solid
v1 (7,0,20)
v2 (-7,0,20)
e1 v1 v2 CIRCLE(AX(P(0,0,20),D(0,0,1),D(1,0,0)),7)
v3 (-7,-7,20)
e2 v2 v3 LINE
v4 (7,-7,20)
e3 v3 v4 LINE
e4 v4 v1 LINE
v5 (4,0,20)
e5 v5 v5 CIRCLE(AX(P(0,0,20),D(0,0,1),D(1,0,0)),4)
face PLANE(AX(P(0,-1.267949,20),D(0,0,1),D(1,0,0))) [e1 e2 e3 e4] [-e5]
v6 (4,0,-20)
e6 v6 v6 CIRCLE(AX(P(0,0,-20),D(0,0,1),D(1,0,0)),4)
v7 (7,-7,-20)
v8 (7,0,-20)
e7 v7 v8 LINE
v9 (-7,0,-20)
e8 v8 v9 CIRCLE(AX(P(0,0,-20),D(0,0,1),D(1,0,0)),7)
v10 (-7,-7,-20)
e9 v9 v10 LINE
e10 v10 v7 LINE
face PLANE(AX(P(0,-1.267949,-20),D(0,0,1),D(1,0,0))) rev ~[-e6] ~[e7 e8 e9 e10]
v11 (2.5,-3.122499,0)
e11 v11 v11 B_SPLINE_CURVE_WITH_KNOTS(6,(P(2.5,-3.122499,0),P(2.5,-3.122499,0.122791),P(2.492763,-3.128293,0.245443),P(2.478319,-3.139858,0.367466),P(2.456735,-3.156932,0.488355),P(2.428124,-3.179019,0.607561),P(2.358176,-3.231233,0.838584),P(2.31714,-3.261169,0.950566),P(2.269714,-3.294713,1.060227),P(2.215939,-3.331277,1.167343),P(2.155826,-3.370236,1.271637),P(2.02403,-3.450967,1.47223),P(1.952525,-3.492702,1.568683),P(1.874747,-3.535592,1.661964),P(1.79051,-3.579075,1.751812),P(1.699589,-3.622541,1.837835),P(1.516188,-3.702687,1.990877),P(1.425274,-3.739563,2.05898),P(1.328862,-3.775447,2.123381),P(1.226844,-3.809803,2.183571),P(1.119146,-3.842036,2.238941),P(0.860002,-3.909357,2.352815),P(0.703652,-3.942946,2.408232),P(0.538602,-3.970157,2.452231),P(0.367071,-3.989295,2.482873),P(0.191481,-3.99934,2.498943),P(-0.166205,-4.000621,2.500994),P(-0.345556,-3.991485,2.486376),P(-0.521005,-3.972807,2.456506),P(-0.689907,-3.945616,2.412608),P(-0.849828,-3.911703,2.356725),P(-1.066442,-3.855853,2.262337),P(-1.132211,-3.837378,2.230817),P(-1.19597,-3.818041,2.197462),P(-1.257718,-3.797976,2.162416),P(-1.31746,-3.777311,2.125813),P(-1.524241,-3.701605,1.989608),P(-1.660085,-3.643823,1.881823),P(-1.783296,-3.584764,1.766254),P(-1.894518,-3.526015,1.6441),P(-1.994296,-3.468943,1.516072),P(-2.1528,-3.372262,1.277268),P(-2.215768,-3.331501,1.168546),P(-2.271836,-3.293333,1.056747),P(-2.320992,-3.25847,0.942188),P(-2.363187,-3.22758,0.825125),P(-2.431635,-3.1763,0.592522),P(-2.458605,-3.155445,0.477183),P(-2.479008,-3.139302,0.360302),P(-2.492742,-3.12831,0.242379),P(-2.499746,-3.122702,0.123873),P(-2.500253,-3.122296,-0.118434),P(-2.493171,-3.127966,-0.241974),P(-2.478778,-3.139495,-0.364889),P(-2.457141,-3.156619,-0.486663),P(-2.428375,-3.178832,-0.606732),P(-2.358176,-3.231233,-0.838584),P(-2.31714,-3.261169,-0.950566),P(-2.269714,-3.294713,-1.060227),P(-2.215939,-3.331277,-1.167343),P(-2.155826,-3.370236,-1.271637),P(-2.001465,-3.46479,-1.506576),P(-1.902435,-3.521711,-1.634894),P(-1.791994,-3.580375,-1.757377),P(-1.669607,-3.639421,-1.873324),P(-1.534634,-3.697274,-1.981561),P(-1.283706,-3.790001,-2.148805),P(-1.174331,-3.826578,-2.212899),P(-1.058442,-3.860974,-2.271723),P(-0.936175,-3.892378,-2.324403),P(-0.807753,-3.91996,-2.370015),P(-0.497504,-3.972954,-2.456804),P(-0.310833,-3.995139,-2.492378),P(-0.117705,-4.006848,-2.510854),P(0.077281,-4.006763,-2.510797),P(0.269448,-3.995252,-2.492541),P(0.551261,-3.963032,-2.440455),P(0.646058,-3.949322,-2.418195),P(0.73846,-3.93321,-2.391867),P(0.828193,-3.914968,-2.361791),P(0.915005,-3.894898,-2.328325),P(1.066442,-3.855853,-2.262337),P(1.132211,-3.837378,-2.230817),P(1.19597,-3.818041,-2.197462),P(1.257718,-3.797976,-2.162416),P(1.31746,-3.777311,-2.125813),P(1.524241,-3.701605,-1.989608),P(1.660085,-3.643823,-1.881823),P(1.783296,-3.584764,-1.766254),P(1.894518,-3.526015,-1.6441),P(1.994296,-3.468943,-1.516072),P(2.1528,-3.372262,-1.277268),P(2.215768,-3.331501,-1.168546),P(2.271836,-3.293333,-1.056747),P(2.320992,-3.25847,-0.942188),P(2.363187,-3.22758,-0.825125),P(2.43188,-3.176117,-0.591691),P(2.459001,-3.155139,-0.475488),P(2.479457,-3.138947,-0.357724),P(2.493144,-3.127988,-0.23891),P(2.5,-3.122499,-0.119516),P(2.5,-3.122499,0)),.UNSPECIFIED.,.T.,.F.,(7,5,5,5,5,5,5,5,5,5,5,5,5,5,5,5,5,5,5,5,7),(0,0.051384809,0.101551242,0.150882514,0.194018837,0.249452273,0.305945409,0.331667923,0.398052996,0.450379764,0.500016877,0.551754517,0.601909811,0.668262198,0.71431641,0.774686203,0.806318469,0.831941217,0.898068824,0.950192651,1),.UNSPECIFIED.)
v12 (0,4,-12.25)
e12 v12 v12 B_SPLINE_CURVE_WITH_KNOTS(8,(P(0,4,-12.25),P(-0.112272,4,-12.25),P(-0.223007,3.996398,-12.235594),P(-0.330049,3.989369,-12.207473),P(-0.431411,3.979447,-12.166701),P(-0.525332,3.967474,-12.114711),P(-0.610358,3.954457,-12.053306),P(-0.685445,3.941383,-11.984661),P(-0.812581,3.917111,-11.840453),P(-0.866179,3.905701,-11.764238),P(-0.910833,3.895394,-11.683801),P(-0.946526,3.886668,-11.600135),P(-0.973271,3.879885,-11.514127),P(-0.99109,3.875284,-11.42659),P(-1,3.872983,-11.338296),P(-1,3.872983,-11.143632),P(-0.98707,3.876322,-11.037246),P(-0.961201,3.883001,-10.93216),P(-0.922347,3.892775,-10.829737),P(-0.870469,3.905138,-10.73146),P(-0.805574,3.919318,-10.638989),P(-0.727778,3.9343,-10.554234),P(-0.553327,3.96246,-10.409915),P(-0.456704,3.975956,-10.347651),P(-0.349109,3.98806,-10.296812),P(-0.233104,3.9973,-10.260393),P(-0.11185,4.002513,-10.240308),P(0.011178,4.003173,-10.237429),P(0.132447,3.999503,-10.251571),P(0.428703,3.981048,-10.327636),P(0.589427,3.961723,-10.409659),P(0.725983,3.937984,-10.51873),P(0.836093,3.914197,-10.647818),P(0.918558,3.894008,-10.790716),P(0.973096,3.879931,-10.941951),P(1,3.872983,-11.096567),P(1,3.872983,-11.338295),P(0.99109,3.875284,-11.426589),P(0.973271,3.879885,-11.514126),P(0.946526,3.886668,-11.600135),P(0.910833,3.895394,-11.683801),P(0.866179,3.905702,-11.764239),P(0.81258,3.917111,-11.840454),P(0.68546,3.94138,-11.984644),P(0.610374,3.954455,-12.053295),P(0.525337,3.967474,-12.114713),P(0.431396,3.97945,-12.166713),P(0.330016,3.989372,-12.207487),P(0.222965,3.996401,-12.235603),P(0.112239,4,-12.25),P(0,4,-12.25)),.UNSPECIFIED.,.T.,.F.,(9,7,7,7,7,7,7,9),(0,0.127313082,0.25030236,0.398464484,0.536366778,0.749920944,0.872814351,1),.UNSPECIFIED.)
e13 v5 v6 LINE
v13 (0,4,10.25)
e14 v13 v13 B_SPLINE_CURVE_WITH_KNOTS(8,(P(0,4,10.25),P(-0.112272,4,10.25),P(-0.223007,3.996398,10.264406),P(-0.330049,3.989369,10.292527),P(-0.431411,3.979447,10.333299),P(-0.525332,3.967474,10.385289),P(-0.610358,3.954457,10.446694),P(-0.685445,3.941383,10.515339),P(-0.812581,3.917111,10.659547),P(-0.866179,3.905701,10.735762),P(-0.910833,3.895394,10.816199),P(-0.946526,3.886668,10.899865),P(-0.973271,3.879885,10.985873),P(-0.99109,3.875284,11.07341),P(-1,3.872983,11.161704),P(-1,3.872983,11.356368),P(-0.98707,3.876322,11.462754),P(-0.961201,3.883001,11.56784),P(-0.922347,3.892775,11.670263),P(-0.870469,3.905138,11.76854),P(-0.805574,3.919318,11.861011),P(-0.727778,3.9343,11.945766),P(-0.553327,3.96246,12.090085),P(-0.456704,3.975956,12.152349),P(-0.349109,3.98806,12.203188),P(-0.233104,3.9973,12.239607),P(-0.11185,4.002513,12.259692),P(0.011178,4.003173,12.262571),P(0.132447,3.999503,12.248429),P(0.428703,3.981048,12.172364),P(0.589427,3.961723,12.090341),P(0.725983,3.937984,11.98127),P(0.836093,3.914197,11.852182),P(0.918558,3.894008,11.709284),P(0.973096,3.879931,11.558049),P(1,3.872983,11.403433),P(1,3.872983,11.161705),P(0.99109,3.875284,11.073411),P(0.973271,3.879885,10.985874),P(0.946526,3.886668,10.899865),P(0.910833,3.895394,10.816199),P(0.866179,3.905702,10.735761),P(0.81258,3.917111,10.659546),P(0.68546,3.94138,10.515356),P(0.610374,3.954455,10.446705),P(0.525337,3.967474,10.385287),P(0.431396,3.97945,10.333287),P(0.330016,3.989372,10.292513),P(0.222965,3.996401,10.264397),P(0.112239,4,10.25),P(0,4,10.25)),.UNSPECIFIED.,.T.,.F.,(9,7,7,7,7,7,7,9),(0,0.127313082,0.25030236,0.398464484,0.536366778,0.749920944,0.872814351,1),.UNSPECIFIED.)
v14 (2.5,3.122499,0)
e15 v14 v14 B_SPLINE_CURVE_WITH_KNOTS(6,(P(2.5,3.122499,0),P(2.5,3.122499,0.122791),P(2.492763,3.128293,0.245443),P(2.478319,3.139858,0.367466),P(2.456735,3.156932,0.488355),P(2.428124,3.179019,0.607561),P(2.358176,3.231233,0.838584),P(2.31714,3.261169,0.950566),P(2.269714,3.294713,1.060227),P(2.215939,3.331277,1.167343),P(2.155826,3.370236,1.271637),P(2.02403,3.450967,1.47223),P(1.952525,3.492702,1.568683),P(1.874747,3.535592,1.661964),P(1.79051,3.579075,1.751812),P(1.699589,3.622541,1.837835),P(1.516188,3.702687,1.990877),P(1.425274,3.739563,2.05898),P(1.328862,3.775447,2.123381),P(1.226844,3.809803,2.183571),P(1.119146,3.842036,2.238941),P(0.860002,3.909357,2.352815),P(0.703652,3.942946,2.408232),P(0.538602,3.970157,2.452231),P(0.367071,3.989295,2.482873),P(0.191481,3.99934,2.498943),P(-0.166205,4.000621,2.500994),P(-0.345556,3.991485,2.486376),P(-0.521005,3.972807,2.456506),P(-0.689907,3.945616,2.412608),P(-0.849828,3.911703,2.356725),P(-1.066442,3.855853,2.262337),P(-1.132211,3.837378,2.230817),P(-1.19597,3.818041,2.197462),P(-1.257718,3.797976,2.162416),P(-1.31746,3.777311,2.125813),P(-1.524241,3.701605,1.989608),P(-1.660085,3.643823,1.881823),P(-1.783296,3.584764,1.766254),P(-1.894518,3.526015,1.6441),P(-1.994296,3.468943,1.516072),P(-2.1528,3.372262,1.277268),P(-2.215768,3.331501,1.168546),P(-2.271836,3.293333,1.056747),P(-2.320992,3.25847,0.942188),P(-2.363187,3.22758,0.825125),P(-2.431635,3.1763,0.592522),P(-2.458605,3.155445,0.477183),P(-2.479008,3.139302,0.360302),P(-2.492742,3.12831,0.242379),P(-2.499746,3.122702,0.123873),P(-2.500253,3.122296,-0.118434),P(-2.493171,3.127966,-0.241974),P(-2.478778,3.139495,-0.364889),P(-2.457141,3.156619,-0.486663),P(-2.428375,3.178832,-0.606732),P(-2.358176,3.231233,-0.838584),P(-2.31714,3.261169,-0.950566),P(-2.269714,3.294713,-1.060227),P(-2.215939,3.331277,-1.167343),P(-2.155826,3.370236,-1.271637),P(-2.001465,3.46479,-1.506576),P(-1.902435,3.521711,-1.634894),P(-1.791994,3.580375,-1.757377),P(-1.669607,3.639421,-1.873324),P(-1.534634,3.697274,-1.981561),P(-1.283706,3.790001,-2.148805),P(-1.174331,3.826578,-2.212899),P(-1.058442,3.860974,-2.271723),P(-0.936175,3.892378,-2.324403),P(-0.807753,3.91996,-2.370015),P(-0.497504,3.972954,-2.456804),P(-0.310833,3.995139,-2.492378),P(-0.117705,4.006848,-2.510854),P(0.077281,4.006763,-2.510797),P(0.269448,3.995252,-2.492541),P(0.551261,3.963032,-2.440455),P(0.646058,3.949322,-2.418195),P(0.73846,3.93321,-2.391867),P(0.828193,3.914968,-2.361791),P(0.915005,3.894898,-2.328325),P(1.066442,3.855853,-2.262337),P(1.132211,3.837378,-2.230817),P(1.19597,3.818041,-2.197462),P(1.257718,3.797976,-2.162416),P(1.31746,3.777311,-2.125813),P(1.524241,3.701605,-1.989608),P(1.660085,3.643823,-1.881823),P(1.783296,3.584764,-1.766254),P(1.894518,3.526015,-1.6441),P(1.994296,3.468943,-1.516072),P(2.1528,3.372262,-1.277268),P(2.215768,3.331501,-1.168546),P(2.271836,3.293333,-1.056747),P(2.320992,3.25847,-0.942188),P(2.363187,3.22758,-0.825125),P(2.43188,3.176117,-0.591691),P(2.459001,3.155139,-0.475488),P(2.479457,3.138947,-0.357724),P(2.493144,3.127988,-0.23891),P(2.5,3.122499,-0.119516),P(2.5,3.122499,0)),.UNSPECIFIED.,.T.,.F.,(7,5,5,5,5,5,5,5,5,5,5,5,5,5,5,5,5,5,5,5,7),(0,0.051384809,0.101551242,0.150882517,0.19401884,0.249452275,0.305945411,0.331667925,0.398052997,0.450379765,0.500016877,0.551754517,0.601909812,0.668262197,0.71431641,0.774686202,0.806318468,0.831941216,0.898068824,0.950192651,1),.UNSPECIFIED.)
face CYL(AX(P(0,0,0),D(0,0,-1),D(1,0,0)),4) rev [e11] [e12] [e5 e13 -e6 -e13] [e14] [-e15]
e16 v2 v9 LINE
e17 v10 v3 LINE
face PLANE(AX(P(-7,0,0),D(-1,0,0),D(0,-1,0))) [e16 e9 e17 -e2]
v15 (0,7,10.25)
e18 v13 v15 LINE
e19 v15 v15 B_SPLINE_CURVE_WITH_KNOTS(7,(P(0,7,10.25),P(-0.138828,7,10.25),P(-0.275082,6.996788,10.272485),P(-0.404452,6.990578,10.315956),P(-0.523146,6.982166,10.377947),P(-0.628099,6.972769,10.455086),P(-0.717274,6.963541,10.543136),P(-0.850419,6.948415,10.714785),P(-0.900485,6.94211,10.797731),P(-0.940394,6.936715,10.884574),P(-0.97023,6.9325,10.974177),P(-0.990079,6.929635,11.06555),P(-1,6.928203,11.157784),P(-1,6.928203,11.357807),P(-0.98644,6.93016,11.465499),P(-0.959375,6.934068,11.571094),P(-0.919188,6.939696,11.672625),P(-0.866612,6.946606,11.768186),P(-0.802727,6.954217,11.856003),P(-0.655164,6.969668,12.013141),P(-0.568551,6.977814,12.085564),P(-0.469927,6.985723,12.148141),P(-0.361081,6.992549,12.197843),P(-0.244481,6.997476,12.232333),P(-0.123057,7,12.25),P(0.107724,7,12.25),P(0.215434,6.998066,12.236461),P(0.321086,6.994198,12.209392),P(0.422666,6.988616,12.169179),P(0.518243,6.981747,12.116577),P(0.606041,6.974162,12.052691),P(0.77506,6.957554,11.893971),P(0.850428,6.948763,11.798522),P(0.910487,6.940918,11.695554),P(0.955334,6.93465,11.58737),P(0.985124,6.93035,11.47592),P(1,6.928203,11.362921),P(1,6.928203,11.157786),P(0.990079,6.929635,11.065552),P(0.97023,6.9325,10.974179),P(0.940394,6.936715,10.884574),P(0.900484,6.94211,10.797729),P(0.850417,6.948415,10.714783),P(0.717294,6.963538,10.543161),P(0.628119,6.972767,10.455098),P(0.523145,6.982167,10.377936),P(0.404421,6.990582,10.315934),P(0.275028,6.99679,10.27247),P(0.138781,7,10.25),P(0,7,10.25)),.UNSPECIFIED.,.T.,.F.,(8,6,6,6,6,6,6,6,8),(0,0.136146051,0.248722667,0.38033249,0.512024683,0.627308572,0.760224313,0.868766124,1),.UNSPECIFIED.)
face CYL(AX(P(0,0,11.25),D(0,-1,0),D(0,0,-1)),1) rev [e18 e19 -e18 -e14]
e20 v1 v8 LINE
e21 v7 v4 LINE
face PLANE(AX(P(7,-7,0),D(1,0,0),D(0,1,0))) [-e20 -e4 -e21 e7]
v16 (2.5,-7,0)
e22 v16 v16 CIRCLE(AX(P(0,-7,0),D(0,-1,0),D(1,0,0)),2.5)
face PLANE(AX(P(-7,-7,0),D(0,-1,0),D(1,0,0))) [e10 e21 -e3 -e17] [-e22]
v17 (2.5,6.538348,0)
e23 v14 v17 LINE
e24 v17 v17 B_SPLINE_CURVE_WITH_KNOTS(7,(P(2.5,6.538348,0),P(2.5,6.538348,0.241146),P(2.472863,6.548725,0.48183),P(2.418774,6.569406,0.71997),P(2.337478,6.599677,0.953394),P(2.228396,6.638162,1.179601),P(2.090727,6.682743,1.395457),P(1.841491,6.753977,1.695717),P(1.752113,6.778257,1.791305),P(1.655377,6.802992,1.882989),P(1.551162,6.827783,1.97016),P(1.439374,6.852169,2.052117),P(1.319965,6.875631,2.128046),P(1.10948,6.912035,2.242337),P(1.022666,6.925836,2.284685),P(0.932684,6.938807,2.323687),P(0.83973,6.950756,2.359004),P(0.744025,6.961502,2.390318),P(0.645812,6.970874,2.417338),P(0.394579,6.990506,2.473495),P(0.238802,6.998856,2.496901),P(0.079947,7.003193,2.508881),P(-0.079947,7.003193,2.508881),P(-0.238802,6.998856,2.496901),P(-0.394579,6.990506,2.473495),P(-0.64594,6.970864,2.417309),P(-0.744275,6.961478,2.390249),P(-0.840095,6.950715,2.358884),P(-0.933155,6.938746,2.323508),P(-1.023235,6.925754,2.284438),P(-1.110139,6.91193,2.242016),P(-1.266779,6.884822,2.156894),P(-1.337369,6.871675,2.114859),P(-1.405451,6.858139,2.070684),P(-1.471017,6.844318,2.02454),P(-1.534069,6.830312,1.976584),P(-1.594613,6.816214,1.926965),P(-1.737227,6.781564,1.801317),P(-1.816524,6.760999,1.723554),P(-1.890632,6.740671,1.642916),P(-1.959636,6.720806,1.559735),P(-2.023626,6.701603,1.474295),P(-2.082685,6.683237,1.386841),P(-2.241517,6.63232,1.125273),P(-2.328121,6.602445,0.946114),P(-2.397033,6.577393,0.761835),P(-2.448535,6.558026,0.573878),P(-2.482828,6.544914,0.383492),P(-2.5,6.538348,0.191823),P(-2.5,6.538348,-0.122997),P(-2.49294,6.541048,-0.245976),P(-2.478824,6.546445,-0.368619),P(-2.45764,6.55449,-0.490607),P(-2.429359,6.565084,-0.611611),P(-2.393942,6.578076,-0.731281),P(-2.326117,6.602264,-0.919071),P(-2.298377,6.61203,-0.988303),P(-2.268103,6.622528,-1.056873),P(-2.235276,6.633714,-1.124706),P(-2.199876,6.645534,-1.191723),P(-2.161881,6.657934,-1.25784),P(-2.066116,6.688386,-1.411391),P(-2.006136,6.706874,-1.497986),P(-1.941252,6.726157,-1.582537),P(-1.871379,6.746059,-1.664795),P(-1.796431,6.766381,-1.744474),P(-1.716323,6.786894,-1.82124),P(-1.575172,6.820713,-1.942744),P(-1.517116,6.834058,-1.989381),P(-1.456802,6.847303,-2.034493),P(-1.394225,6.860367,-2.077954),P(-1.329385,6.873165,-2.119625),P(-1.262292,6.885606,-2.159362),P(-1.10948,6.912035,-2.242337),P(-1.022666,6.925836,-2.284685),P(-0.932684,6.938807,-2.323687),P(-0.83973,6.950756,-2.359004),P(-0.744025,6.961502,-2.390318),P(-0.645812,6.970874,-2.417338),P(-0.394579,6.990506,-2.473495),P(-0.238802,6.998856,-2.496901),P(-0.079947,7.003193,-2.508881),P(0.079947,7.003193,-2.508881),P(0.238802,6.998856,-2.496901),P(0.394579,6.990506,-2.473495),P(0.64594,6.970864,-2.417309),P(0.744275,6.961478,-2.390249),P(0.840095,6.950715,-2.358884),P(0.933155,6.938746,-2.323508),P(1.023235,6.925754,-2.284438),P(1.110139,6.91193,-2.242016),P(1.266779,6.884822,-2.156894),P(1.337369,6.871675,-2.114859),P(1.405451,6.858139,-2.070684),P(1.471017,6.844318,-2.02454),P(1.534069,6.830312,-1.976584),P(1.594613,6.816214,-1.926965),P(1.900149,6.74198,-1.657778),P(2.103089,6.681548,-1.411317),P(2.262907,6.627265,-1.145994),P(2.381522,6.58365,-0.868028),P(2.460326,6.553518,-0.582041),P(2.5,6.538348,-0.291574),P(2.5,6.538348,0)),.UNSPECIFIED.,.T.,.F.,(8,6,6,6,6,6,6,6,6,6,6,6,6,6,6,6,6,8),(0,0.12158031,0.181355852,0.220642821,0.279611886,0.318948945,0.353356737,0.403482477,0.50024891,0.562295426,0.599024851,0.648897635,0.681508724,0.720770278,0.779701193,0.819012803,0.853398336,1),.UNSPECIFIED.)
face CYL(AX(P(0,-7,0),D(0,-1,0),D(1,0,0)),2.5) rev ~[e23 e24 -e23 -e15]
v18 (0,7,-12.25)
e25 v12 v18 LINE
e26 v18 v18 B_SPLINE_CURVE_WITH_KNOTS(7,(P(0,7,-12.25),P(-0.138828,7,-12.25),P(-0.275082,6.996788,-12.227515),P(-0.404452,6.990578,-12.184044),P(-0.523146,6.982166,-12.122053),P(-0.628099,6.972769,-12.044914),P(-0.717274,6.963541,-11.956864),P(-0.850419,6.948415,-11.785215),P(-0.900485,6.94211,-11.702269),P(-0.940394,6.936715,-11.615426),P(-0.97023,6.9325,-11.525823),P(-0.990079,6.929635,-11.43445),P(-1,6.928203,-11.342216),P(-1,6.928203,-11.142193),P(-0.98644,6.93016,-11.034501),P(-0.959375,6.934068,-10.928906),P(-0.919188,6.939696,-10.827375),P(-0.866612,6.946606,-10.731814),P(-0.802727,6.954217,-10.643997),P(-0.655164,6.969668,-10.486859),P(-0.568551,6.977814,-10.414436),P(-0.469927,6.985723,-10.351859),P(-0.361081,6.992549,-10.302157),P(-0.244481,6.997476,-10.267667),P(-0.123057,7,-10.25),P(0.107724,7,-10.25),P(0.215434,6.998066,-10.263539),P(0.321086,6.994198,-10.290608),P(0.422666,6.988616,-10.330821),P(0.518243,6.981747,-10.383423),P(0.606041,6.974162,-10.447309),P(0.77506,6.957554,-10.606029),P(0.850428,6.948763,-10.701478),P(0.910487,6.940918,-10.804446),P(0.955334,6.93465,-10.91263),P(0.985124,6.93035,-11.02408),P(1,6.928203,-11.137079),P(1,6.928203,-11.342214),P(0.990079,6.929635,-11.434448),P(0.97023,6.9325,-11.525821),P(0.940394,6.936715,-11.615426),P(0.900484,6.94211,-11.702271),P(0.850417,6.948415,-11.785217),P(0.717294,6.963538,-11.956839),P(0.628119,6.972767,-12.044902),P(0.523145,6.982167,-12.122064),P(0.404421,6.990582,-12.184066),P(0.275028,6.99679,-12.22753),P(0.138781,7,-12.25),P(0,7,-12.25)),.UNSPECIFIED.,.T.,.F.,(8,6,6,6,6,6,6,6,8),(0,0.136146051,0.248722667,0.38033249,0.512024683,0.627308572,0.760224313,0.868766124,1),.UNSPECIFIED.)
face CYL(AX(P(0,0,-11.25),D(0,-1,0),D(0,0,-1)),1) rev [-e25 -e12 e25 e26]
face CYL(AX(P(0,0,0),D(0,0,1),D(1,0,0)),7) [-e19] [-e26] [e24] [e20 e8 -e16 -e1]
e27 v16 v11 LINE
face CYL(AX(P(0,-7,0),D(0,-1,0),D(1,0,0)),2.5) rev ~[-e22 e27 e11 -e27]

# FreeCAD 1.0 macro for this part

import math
import FreeCAD as App
import Part
import Sketcher

V = App.Vector

doc = App.newDocument("Part")
body = doc.addObject("PartDesign::Body", "Body")

sketch1 = body.newObject("Sketcher::SketchObject", "Sketch")
sketch1.AttachmentSupport = (doc.getObject("XY_Plane"), [""])
sketch1.MapMode = "FlatFace"
sketch1.addGeometry([
    Part.LineSegment(V(-7, 0, 0), V(-7, -7, 0)),
    Part.LineSegment(V(-7, -7, 0), V(7, -7, 0)),
    Part.LineSegment(V(7, -7, 0), V(7, 0, 0)),
    Part.ArcOfCircle(Part.Circle(V(0, 0, 0), V(0, 0, 1), 7), math.radians(0), math.radians(180)),
    Part.Circle(V(0, 0, 0), V(0, 0, 1), 4),
], False)
sketch1.addConstraint([
    Sketcher.Constraint("Coincident", 0, 2, 1, 1),
    Sketcher.Constraint("Coincident", 1, 2, 2, 1),
    Sketcher.Constraint("Tangent", 2, 2, 3, 1),
    Sketcher.Constraint("Tangent", 3, 2, 0, 1),
    Sketcher.Constraint("Vertical", 0),
    Sketcher.Constraint("Horizontal", 1),
    Sketcher.Constraint("Vertical", 2),
    Sketcher.Constraint("Coincident", 3, 3, -1, 1),
    Sketcher.Constraint("Coincident", 4, 3, -1, 1),
    Sketcher.Constraint("Diameter", 4, 8.0),
    Sketcher.Constraint("Radius", 3, 7.0),
    Sketcher.Constraint("DistanceY", 0, 2, 0, 1, 7.0),
])
pad1 = body.newObject("PartDesign::Pad", "Pad")
pad1.Profile = sketch1
pad1.Length = 40
pad1.Midplane = True

sketch2 = body.newObject("Sketcher::SketchObject", "Sketch001")
sketch2.AttachmentSupport = (doc.getObject("XZ_Plane"), [""])
sketch2.MapMode = "FlatFace"
sketch2.AttachmentOffset = App.Placement(V(0, 0, 7), App.Rotation())
sketch2.addGeometry(Part.Circle(V(0, 0, 0), V(0, 0, 1), 2.5), False)
sketch2.addConstraint([
    Sketcher.Constraint("Coincident", 0, 3, -1, 1),
    Sketcher.Constraint("Diameter", 0, 5.0),
])
pocket1 = body.newObject("PartDesign::Pocket", "Pocket")
pocket1.Profile = sketch2
pocket1.Type = "ThroughAll"

sketch3 = body.newObject("Sketcher::SketchObject", "Sketch002")
sketch3.AttachmentSupport = (doc.getObject("XZ_Plane"), [""])
sketch3.MapMode = "FlatFace"
sketch3.addGeometry([
    Part.Circle(V(0, -11.2, 0), V(0, 0, 1), 1),
    Part.Circle(V(0, 11.2, 0), V(0, 0, 1), 1),
], False)
sketch3.addConstraint([
    Sketcher.Constraint("Equal", 0, 1),
    Sketcher.Constraint("Symmetric", 0, 3, 1, 3, -1, 1),
    Sketcher.Constraint("PointOnObject", 0, 3, -2),
    Sketcher.Constraint("Diameter", 0, 2.0),
    Sketcher.Constraint("DistanceY", 0, 3, 1, 3, 22.5),
])
pocket2 = body.newObject("PartDesign::Pocket", "Pocket001")
pocket2.Profile = sketch3
pocket2.Type = "ThroughAll"

doc.recompute()
